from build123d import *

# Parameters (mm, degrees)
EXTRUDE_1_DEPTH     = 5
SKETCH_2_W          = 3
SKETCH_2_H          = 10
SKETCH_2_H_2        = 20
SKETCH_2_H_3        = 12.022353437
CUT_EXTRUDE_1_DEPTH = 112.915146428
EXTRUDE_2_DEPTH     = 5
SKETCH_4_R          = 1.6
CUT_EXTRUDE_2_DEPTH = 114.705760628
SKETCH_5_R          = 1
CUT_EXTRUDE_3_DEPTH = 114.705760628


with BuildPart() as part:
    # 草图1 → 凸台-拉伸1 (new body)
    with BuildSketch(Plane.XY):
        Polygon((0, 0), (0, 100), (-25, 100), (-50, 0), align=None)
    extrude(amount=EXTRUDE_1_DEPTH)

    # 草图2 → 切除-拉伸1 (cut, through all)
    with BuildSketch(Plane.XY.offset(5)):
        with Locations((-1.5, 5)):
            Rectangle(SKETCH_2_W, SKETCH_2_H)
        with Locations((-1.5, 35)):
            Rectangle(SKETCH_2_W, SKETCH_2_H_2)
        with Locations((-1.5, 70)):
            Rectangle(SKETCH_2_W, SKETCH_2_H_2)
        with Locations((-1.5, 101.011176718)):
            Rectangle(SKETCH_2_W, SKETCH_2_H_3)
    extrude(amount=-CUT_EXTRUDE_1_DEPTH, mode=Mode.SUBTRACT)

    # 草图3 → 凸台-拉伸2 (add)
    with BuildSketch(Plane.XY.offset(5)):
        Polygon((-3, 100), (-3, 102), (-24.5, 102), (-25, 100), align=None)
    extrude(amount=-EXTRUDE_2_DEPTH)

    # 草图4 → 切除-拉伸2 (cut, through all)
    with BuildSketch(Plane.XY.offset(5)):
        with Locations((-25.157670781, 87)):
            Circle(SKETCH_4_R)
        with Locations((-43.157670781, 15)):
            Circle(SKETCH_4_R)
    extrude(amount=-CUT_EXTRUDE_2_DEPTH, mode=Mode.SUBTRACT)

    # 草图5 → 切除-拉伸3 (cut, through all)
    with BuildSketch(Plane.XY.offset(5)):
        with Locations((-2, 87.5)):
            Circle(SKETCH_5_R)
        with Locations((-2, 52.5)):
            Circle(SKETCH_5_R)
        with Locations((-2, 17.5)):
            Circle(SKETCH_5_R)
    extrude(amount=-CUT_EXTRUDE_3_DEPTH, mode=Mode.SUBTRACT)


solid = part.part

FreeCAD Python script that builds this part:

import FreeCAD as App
import Part
import Sketcher
from FreeCAD import Vector

doc = App.newDocument("Part")
params = doc.addObject("Spreadsheet::Sheet", "Params")
for row, (alias, value) in enumerate([
    ("sketch1_width", "25 mm"),
    ("sketch1_width2", "50 mm"),
    ("sketch1_height", "100 mm"),
    ("pad1_length", "5 mm"),
    ("sketch2_width", "3 mm"),
    ("sketch2_height", "10 mm"),
    ("sketch2_height2", "20 mm"),
    ("sketch3_width", "22 mm"),
    ("sketch3_height", "2 mm"),
    ("sketch3_width2", "21.5 mm"),
    ("pad2_length", "5 mm"),
    ("sketch4_diameter", "3.2 mm"),
    ("sketch5_diameter", "2 mm"),
], start=1):
    params.set(f"A{row}", alias)
    params.set(f"B{row}", "=" + value)
    params.setAlias(f"B{row}", alias)

body = doc.addObject("PartDesign::Body", "Body")

sketch1 = body.newObject("Sketcher::SketchObject", "Sketch")
sketch1.AttachmentSupport = (doc.getObject("XY_Plane"), [""])
sketch1.MapMode = "FlatFace"
sketch1.addGeometry(Part.LineSegment(Vector(0, 0, 0), Vector(0, 100, 0)), False)
sketch1.addGeometry(Part.LineSegment(Vector(0, 100, 0), Vector(-25, 100, 0)), False)
sketch1.addGeometry(Part.LineSegment(Vector(-25, 100, 0), Vector(-50, 0, 0)), False)
sketch1.addGeometry(Part.LineSegment(Vector(-50, 0, 0), Vector(0, 0, 0)), False)
sketch1.addConstraint(Sketcher.Constraint("Coincident", 0, 2, 1, 1))
sketch1.addConstraint(Sketcher.Constraint("Coincident", 1, 2, 2, 1))
sketch1.addConstraint(Sketcher.Constraint("Coincident", 2, 2, 3, 1))
sketch1.addConstraint(Sketcher.Constraint("Coincident", 3, 2, 0, 1))
sketch1.addConstraint(Sketcher.Constraint("Vertical", 0))
sketch1.addConstraint(Sketcher.Constraint("Horizontal", 1))
sketch1.addConstraint(Sketcher.Constraint("Horizontal", 3))
sketch1.addConstraint(Sketcher.Constraint("Coincident", 3, 2, -1, 1))
sketch1.addConstraint(Sketcher.Constraint("DistanceX", 1, 2, 1, 1, 25.0))
sketch1.addConstraint(Sketcher.Constraint("DistanceX", 3, 1, 3, 2, 50.0))
sketch1.addConstraint(Sketcher.Constraint("DistanceY", 0, 1, 0, 2, 100.0))
sketch1.setExpression("Constraints[8]", "Params.sketch1_width")
sketch1.setExpression("Constraints[9]", "Params.sketch1_width2")
sketch1.setExpression("Constraints[10]", "Params.sketch1_height")
pad1 = body.newObject("PartDesign::Pad", "Pad")
pad1.Profile = sketch1
pad1.setExpression("Length", "Params.pad1_length")

sketch2 = body.newObject("Sketcher::SketchObject", "Sketch001")
sketch2.AttachmentSupport = (doc.getObject("XY_Plane"), [""])
sketch2.MapMode = "FlatFace"
sketch2.AttachmentOffset = App.Placement(Vector(0, 0, 5), App.Rotation())
sketch2.addGeometry(Part.LineSegment(Vector(-3, 10, 0), Vector(-3, 0, 0)), False)
sketch2.addGeometry(Part.LineSegment(Vector(-3, 0, 0), Vector(0, 0, 0)), False)
sketch2.addGeometry(Part.LineSegment(Vector(0, 0, 0), Vector(0, 10, 0)), False)
sketch2.addGeometry(Part.LineSegment(Vector(0, 10, 0), Vector(-3, 10, 0)), False)
sketch2.addGeometry(Part.LineSegment(Vector(-3, 45, 0), Vector(-3, 25, 0)), False)
sketch2.addGeometry(Part.LineSegment(Vector(-3, 25, 0), Vector(0, 25, 0)), False)
sketch2.addGeometry(Part.LineSegment(Vector(0, 25, 0), Vector(0, 45, 0)), False)
sketch2.addGeometry(Part.LineSegment(Vector(0, 45, 0), Vector(-3, 45, 0)), False)
sketch2.addGeometry(Part.LineSegment(Vector(-3, 80, 0), Vector(-3, 60, 0)), False)
sketch2.addGeometry(Part.LineSegment(Vector(-3, 60, 0), Vector(0, 60, 0)), False)
sketch2.addGeometry(Part.LineSegment(Vector(0, 60, 0), Vector(0, 80, 0)), False)
sketch2.addGeometry(Part.LineSegment(Vector(0, 80, 0), Vector(-3, 80, 0)), False)
sketch2.addGeometry(Part.LineSegment(Vector(-3, 107.022353, 0), Vector(-3, 95, 0)), False)
sketch2.addGeometry(Part.LineSegment(Vector(-3, 95, 0), Vector(0, 95, 0)), False)
sketch2.addGeometry(Part.LineSegment(Vector(0, 95, 0), Vector(0, 107.022353, 0)), False)
sketch2.addGeometry(Part.LineSegment(Vector(0, 107.022353, 0), Vector(-3, 107.022353, 0)), False)
sketch2.addConstraint(Sketcher.Constraint("Coincident", 0, 2, 1, 1))
sketch2.addConstraint(Sketcher.Constraint("Coincident", 1, 2, 2, 1))
sketch2.addConstraint(Sketcher.Constraint("Coincident", 2, 2, 3, 1))
sketch2.addConstraint(Sketcher.Constraint("Coincident", 3, 2, 0, 1))
sketch2.addConstraint(Sketcher.Constraint("Coincident", 4, 2, 5, 1))
sketch2.addConstraint(Sketcher.Constraint("Coincident", 5, 2, 6, 1))
sketch2.addConstraint(Sketcher.Constraint("Coincident", 6, 2, 7, 1))
sketch2.addConstraint(Sketcher.Constraint("Coincident", 7, 2, 4, 1))
sketch2.addConstraint(Sketcher.Constraint("Coincident", 8, 2, 9, 1))
sketch2.addConstraint(Sketcher.Constraint("Coincident", 9, 2, 10, 1))
sketch2.addConstraint(Sketcher.Constraint("Coincident", 10, 2, 11, 1))
sketch2.addConstraint(Sketcher.Constraint("Coincident", 11, 2, 8, 1))
sketch2.addConstraint(Sketcher.Constraint("Coincident", 12, 2, 13, 1))
sketch2.addConstraint(Sketcher.Constraint("Coincident", 13, 2, 14, 1))
sketch2.addConstraint(Sketcher.Constraint("Coincident", 14, 2, 15, 1))
sketch2.addConstraint(Sketcher.Constraint("Coincident", 15, 2, 12, 1))
sketch2.addConstraint(Sketcher.Constraint("Vertical", 0))
sketch2.addConstraint(Sketcher.Constraint("Horizontal", 1))
sketch2.addConstraint(Sketcher.Constraint("Vertical", 2))
sketch2.addConstraint(Sketcher.Constraint("Horizontal", 3))
sketch2.addConstraint(Sketcher.Constraint("Vertical", 4))
sketch2.addConstraint(Sketcher.Constraint("Horizontal", 5))
sketch2.addConstraint(Sketcher.Constraint("Vertical", 6))
sketch2.addConstraint(Sketcher.Constraint("Horizontal", 7))
sketch2.addConstraint(Sketcher.Constraint("Vertical", 8))
sketch2.addConstraint(Sketcher.Constraint("Horizontal", 9))
sketch2.addConstraint(Sketcher.Constraint("Vertical", 10))
sketch2.addConstraint(Sketcher.Constraint("Horizontal", 11))
sketch2.addConstraint(Sketcher.Constraint("Vertical", 12))
sketch2.addConstraint(Sketcher.Constraint("Horizontal", 13))
sketch2.addConstraint(Sketcher.Constraint("Vertical", 14))
sketch2.addConstraint(Sketcher.Constraint("Horizontal", 15))
sketch2.addConstraint(Sketcher.Constraint("Coincident", 1, 2, -1, 1))
sketch2.addConstraint(Sketcher.Constraint("PointOnObject", 5, 2, -2))
sketch2.addConstraint(Sketcher.Constraint("PointOnObject", 9, 2, -2))
sketch2.addConstraint(Sketcher.Constraint("PointOnObject", 13, 2, -2))
sketch2.addConstraint(Sketcher.Constraint("Vertical", 3, 2, 4, 2))
sketch2.addConstraint(Sketcher.Constraint("Vertical", 7, 2, 8, 2))
sketch2.addConstraint(Sketcher.Constraint("Vertical", 11, 2, 12, 2))
sketch2.addConstraint(Sketcher.Constraint("Equal", 6, 8))
sketch2.addConstraint(Sketcher.Constraint("DistanceX", 1, 1, 1, 2, 3.0))
sketch2.addConstraint(Sketcher.Constraint("DistanceY", 0, 2, 0, 1, 10.0))
sketch2.addConstraint(Sketcher.Constraint("DistanceY", 4, 2, 4, 1, 20.0))
sketch2.addConstraint(Sketcher.Constraint("DistanceY", -1, 1, 4, 2, 25.0))
sketch2.addConstraint(Sketcher.Constraint("DistanceY", -1, 1, 8, 2, 60.0))
sketch2.addConstraint(Sketcher.Constraint("DistanceY", -1, 1, 12, 2, 95.0))
sketch2.addConstraint(Sketcher.Constraint("DistanceY", 12, 2, 12, 1, 12.022353))
sketch2.setExpression("Constraints[40]", "Params.sketch2_width")
sketch2.setExpression("Constraints[41]", "Params.sketch2_height")
sketch2.setExpression("Constraints[42]", "Params.sketch2_height2")
pocket1 = body.newObject("PartDesign::Pocket", "Pocket")
pocket1.Profile = sketch2
pocket1.Type = "ThroughAll"

sketch3 = body.newObject("Sketcher::SketchObject", "Sketch002")
sketch3.AttachmentSupport = (doc.getObject("XY_Plane"), [""])
sketch3.MapMode = "FlatFace"
sketch3.AttachmentOffset = App.Placement(Vector(0, 0, 5), App.Rotation())
sketch3.addGeometry(Part.LineSegment(Vector(-3, 100, 0), Vector(-3, 102, 0)), False)
sketch3.addGeometry(Part.LineSegment(Vector(-3, 102, 0), Vector(-24.5, 102, 0)), False)
sketch3.addGeometry(Part.LineSegment(Vector(-24.5, 102, 0), Vector(-25, 100, 0)), False)
sketch3.addGeometry(Part.LineSegment(Vector(-25, 100, 0), Vector(-3, 100, 0)), False)
sketch3.addConstraint(Sketcher.Constraint("Coincident", 0, 2, 1, 1))
sketch3.addConstraint(Sketcher.Constraint("Coincident", 1, 2, 2, 1))
sketch3.addConstraint(Sketcher.Constraint("Coincident", 2, 2, 3, 1))
sketch3.addConstraint(Sketcher.Constraint("Coincident", 3, 2, 0, 1))
sketch3.addConstraint(Sketcher.Constraint("Vertical", 0))
sketch3.addConstraint(Sketcher.Constraint("Horizontal", 1))
sketch3.addConstraint(Sketcher.Constraint("Horizontal", 3))
sketch3.addConstraint(Sketcher.Constraint("DistanceX", 3, 1, 3, 2, 22.0))
sketch3.addConstraint(Sketcher.Constraint("DistanceY", 0, 1, 0, 2, 2.0))
sketch3.addConstraint(Sketcher.Constraint("DistanceX", 1, 2, 1, 1, 21.5))
sketch3.addConstraint(Sketcher.Constraint("DistanceX", 0, 2, -1, 1, 3.0))
sketch3.addConstraint(Sketcher.Constraint("DistanceY", -1, 1, 0, 2, 102.0))
sketch3.setExpression("Constraints[7]", "Params.sketch3_width")
sketch3.setExpression("Constraints[8]", "Params.sketch3_height")
sketch3.setExpression("Constraints[9]", "Params.sketch3_width2")
pad2 = body.newObject("PartDesign::Pad", "Pad001")
pad2.Profile = sketch3
pad2.setExpression("Length", "Params.pad2_length")
pad2.Reversed = True

sketch4 = body.newObject("Sketcher::SketchObject", "Sketch003")
sketch4.AttachmentSupport = (doc.getObject("XY_Plane"), [""])
sketch4.MapMode = "FlatFace"
sketch4.AttachmentOffset = App.Placement(Vector(0, 0, 5), App.Rotation())
sketch4.addGeometry(Part.Circle(Vector(-25.157671, 87, 0), Vector(0, 0, 1), 1.6), False)
sketch4.addGeometry(Part.Circle(Vector(-43.157671, 15, 0), Vector(0, 0, 1), 1.6), False)
sketch4.addConstraint(Sketcher.Constraint("Equal", 0, 1))
sketch4.addConstraint(Sketcher.Constraint("Diameter", 0, 3.2))
sketch4.addConstraint(Sketcher.Constraint("DistanceY", -1, 1, 0, 3, 87.0))
sketch4.addConstraint(Sketcher.Constraint("DistanceY", -1, 1, 1, 3, 15.0))
sketch4.addConstraint(Sketcher.Constraint("DistanceX", 1, 3, 0, 3, 18.0))
sketch4.addConstraint(Sketcher.Constraint("DistanceX", 0, 3, -1, 1, 25.157671))
sketch4.setExpression("Constraints[1]", "Params.sketch4_diameter")
pocket2 = body.newObject("PartDesign::Pocket", "Pocket001")
pocket2.Profile = sketch4
pocket2.Type = "ThroughAll"

sketch5 = body.newObject("Sketcher::SketchObject", "Sketch004")
sketch5.AttachmentSupport = (doc.getObject("XY_Plane"), [""])
sketch5.MapMode = "FlatFace"
sketch5.AttachmentOffset = App.Placement(Vector(0, 0, 5), App.Rotation())
sketch5.addGeometry(Part.Circle(Vector(-2, 87.5, 0), Vector(0, 0, 1), 1), False)
sketch5.addGeometry(Part.Circle(Vector(-2, 52.5, 0), Vector(0, 0, 1), 1), False)
sketch5.addGeometry(Part.Circle(Vector(-2, 17.5, 0), Vector(0, 0, 1), 1), False)
sketch5.addConstraint(Sketcher.Constraint("Equal", 0, 1))
sketch5.addConstraint(Sketcher.Constraint("Equal", 1, 2))
sketch5.addConstraint(Sketcher.Constraint("Vertical", 0, 3, 1, 3))
sketch5.addConstraint(Sketcher.Constraint("Vertical", 1, 3, 2, 3))
sketch5.addConstraint(Sketcher.Constraint("Diameter", 0, 2.0))
sketch5.addConstraint(Sketcher.Constraint("DistanceX", 0, 3, -1, 1, 2.0))
sketch5.addConstraint(Sketcher.Constraint("DistanceY", 1, 3, 0, 3, 35.0))
sketch5.addConstraint(Sketcher.Constraint("DistanceY", 2, 3, 1, 3, 35.0))
sketch5.addConstraint(Sketcher.Constraint("DistanceY", -1, 1, 0, 3, 87.5))
sketch5.setExpression("Constraints[4]", "Params.sketch5_diameter")
pocket3 = body.newObject("PartDesign::Pocket", "Pocket002")
pocket3.Profile = sketch5
pocket3.Type = "ThroughAll"

doc.recompute()
